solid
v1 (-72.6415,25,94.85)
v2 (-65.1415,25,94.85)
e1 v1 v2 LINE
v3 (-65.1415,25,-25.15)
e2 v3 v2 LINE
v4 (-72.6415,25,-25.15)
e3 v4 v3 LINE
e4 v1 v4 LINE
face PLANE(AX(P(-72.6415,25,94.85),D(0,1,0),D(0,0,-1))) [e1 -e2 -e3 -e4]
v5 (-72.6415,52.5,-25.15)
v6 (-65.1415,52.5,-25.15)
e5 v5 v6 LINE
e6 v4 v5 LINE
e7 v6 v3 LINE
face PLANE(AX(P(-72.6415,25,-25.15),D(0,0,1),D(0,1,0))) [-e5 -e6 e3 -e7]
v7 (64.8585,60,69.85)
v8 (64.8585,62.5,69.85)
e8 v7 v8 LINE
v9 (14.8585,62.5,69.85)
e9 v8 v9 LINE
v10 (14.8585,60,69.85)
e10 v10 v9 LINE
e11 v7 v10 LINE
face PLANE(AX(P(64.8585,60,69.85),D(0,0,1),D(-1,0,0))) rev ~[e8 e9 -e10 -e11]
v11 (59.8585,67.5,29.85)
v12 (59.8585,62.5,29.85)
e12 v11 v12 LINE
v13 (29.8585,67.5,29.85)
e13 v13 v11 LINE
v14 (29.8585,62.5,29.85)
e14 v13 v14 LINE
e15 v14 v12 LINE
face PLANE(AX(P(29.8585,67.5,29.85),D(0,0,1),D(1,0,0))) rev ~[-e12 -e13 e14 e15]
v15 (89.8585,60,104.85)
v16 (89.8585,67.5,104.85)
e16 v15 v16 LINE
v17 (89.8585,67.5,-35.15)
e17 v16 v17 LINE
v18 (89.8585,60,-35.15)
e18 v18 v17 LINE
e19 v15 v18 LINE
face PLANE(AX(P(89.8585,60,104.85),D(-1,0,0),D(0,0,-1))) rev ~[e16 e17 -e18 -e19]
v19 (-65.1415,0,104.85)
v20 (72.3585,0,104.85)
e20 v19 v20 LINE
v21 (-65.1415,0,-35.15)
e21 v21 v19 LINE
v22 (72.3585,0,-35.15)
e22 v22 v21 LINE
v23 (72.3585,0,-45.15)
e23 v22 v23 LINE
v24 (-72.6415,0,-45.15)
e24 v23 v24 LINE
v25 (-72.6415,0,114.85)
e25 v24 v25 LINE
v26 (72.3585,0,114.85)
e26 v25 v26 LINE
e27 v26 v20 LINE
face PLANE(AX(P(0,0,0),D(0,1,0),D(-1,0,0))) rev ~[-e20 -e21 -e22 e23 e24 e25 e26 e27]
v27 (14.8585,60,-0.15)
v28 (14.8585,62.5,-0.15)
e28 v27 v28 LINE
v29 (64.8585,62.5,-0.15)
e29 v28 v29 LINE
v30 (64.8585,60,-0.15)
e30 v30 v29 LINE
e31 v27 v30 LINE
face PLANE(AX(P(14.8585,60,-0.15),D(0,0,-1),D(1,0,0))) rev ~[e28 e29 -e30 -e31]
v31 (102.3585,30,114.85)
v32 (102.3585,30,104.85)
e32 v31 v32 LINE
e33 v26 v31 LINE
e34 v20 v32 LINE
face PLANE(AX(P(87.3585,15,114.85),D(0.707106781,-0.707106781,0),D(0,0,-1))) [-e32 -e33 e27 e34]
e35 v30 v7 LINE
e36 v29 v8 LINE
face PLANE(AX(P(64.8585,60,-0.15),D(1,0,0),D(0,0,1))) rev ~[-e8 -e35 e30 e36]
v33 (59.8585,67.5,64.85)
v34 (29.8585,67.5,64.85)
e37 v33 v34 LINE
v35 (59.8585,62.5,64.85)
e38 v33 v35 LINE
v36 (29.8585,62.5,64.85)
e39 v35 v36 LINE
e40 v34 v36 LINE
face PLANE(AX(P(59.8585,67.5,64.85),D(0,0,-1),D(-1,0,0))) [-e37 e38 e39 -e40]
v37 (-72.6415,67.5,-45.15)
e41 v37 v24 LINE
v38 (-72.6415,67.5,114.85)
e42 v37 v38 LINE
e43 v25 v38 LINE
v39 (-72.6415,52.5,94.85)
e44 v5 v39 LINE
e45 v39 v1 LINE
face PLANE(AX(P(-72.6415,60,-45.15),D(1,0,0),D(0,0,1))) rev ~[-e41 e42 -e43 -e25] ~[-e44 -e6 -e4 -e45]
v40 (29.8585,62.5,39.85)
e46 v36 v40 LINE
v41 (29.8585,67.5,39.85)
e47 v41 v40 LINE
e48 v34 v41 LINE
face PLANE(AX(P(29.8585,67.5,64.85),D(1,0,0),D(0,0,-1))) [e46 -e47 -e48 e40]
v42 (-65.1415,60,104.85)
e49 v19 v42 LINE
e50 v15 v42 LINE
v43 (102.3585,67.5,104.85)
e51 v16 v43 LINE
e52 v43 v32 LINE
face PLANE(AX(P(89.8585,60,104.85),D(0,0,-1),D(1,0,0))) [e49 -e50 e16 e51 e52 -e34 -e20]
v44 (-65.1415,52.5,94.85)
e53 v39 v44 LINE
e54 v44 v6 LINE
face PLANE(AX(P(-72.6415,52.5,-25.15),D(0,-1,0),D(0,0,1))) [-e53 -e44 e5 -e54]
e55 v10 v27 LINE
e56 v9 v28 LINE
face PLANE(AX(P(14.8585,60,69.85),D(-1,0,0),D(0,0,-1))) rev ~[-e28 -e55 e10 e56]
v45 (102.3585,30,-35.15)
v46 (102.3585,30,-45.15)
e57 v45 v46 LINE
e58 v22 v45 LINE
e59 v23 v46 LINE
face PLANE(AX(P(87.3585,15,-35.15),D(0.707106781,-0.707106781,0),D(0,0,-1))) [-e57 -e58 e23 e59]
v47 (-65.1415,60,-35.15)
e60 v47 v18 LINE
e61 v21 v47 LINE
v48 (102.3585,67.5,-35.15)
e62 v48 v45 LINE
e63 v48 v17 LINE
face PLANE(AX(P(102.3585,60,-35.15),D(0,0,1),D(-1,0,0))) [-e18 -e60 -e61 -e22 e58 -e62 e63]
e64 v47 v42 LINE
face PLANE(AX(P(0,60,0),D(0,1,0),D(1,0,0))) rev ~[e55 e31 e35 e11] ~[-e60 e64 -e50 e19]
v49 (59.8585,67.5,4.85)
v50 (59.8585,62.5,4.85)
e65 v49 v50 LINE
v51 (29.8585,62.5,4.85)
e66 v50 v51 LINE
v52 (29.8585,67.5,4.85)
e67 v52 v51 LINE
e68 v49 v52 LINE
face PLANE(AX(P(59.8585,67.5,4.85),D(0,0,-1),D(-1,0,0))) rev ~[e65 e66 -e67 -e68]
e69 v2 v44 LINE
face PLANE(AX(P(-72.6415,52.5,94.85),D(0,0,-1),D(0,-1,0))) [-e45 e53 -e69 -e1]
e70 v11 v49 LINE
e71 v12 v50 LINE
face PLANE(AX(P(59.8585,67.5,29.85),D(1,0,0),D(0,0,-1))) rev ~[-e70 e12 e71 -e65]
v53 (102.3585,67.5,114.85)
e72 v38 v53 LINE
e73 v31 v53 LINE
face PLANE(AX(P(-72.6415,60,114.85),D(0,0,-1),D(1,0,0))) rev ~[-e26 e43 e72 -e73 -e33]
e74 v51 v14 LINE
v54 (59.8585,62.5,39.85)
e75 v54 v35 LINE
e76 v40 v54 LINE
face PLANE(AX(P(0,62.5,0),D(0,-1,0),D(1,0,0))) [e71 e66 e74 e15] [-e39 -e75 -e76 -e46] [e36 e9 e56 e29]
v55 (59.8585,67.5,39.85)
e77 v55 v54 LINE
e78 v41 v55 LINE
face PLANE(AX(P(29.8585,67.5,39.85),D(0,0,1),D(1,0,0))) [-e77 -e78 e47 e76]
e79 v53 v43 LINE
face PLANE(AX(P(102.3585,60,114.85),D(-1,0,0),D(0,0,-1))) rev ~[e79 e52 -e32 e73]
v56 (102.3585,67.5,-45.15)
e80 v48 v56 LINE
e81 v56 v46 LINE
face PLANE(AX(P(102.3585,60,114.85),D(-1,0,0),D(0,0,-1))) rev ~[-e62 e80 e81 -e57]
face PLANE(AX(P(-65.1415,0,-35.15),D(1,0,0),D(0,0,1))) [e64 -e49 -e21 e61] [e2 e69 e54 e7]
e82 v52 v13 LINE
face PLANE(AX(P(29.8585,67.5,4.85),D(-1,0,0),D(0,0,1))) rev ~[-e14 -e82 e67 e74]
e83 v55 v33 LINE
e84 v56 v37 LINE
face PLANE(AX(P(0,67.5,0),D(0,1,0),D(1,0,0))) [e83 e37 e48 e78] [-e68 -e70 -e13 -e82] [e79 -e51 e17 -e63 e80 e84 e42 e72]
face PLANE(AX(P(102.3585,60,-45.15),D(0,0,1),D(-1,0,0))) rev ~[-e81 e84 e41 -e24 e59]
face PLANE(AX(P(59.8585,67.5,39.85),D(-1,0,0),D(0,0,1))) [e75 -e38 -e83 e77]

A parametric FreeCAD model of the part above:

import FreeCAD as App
import Part
import Sketcher
from FreeCAD import Vector
Q = App.Units.Quantity


def edges_at(feature, points):
    """Names of the edges that pass closest to the given points."""
    edges = feature.Shape.Edges
    near = lambda p: min(range(len(edges)), key=lambda i: edges[i].distToShape(Part.Vertex(*p))[0])
    return sorted({f"Edge{near(p) + 1}" for p in points})

doc = App.newDocument("Part")
body = doc.addObject("PartDesign::Body", "Body")

sketch1 = body.newObject("Sketcher::SketchObject", "Sketch")
sketch1.AttachmentSupport = (doc.getObject("XZ_Plane"), [""])
sketch1.MapMode = "FlatFace"
sketch1.addGeometry([
    Part.LineSegment(Vector(-73, -45, 0), Vector(-73, 115, 0)),
    Part.LineSegment(Vector(-73, 115, 0), Vector(102, 115, 0)),
    Part.LineSegment(Vector(102, 115, 0), Vector(102, 105, 0)),
    Part.LineSegment(Vector(102, 105, 0), Vector(-65, 105, 0)),
    Part.LineSegment(Vector(-65, 105, 0), Vector(-65, -35, 0)),
    Part.LineSegment(Vector(-65, -35, 0), Vector(102, -35, 0)),
    Part.LineSegment(Vector(102, -35, 0), Vector(102, -45, 0)),
    Part.LineSegment(Vector(102, -45, 0), Vector(-73, -45, 0)),
], False)
sketch1.addConstraint([
    Sketcher.Constraint("Coincident", 0, 2, 1, 1),
    Sketcher.Constraint("Coincident", 1, 2, 2, 1),
    Sketcher.Constraint("Coincident", 2, 2, 3, 1),
    Sketcher.Constraint("Coincident", 3, 2, 4, 1),
    Sketcher.Constraint("Coincident", 4, 2, 5, 1),
    Sketcher.Constraint("Coincident", 5, 2, 6, 1),
    Sketcher.Constraint("Coincident", 6, 2, 7, 1),
    Sketcher.Constraint("Coincident", 7, 2, 0, 1),
    Sketcher.Constraint("Vertical", 0),
    Sketcher.Constraint("Horizontal", 1),
    Sketcher.Constraint("Vertical", 2),
    Sketcher.Constraint("Horizontal", 3),
    Sketcher.Constraint("Vertical", 4),
    Sketcher.Constraint("Horizontal", 5),
    Sketcher.Constraint("Vertical", 6),
    Sketcher.Constraint("Horizontal", 7),
    Sketcher.Constraint("Vertical", 2, 2, 5, 2),
    Sketcher.Constraint("Equal", 2, 6),
    Sketcher.Constraint("DistanceX", 1, 1, 1, 2, Q("175 mm")),
    Sketcher.Constraint("DistanceY", 0, 1, 0, 2, Q("160 mm")),
    Sketcher.Constraint("DistanceY", 2, 2, 2, 1, Q("10 mm")),
    Sketcher.Constraint("DistanceX", 3, 2, 3, 1, Q("167.5 mm")),
    Sketcher.Constraint("DistanceY", -1, 1, 0, 2, Q("114.85 mm")),
    Sketcher.Constraint("DistanceX", 0, 2, -1, 1, Q("72.6415 mm")),
])
pad1 = body.newObject("PartDesign::Pad", "Pad")
pad1.Profile = sketch1
pad1.Length = 60
pad1.Reversed = True

sketch2 = body.newObject("Sketcher::SketchObject", "Sketch001")
sketch2.AttachmentSupport = (doc.getObject("YZ_Plane"), [""])
sketch2.MapMode = "FlatFace"
sketch2.AttachmentOffset = App.Placement(Vector(0, 0, -72.6415), App.Rotation())
sketch2.addGeometry([
    Part.LineSegment(Vector(52, 95, 0), Vector(52, -25, 0)),
    Part.LineSegment(Vector(52, -25, 0), Vector(25, -25, 0)),
    Part.LineSegment(Vector(25, -25, 0), Vector(25, 95, 0)),
    Part.LineSegment(Vector(25, 95, 0), Vector(52, 95, 0)),
], False)
sketch2.addConstraint([
    Sketcher.Constraint("Coincident", 0, 2, 1, 1),
    Sketcher.Constraint("Coincident", 1, 2, 2, 1),
    Sketcher.Constraint("Coincident", 2, 2, 3, 1),
    Sketcher.Constraint("Coincident", 3, 2, 0, 1),
    Sketcher.Constraint("Vertical", 0),
    Sketcher.Constraint("Horizontal", 1),
    Sketcher.Constraint("Vertical", 2),
    Sketcher.Constraint("Horizontal", 3),
    Sketcher.Constraint("DistanceY", 0, 2, 0, 1, Q("120 mm")),
    Sketcher.Constraint("DistanceX", 1, 2, 1, 1, Q("27.5 mm")),
    Sketcher.Constraint("DistanceX", -1, 1, 1, 2, Q("25 mm")),
    Sketcher.Constraint("DistanceY", 0, 2, -1, 1, Q("25.15 mm")),
])
pocket1 = body.newObject("PartDesign::Pocket", "Pocket")
pocket1.Profile = sketch2
pocket1.Length = 60
pocket1.Reversed = True

sketch3 = body.newObject("Sketcher::SketchObject", "Sketch002")
sketch3.AttachmentSupport = (doc.getObject("XZ_Plane"), [""])
sketch3.MapMode = "FlatFace"
sketch3.AttachmentOffset = App.Placement(Vector(0, 0, -60), App.Rotation())
sketch3.addGeometry([
    Part.LineSegment(Vector(-73, -45, 0), Vector(-73, 115, 0)),
    Part.LineSegment(Vector(-73, 115, 0), Vector(102, 115, 0)),
    Part.LineSegment(Vector(102, 115, 0), Vector(102, -45, 0)),
    Part.LineSegment(Vector(102, -45, 0), Vector(-73, -45, 0)),
], False)
sketch3.addConstraint([
    Sketcher.Constraint("Coincident", 0, 2, 1, 1),
    Sketcher.Constraint("Coincident", 1, 2, 2, 1),
    Sketcher.Constraint("Coincident", 2, 2, 3, 1),
    Sketcher.Constraint("Coincident", 3, 2, 0, 1),
    Sketcher.Constraint("Vertical", 0),
    Sketcher.Constraint("Horizontal", 1),
    Sketcher.Constraint("Vertical", 2),
    Sketcher.Constraint("Horizontal", 3),
    Sketcher.Constraint("DistanceX", 1, 1, 1, 2, Q("175 mm")),
    Sketcher.Constraint("DistanceY", 0, 1, 0, 2, Q("160 mm")),
    Sketcher.Constraint("DistanceY", -1, 1, 0, 2, Q("114.85 mm")),
    Sketcher.Constraint("DistanceX", 0, 2, -1, 1, Q("72.6415 mm")),
])
pad2 = body.newObject("PartDesign::Pad", "Pad001")
pad2.Profile = sketch3
pad2.Length = 7.5
pad2.Reversed = True

sketch4 = body.newObject("Sketcher::SketchObject", "Sketch003")
sketch4.AttachmentSupport = (doc.getObject("XZ_Plane"), [""])
sketch4.MapMode = "FlatFace"
sketch4.AttachmentOffset = App.Placement(Vector(0, 0, -60), App.Rotation())
sketch4.addGeometry([
    Part.LineSegment(Vector(102, 105, 0), Vector(90, 105, 0)),
    Part.LineSegment(Vector(90, 105, 0), Vector(90, -35, 0)),
    Part.LineSegment(Vector(90, -35, 0), Vector(102, -35, 0)),
    Part.LineSegment(Vector(102, -35, 0), Vector(102, 105, 0)),
], False)
sketch4.addConstraint([
    Sketcher.Constraint("Coincident", 0, 2, 1, 1),
    Sketcher.Constraint("Coincident", 1, 2, 2, 1),
    Sketcher.Constraint("Coincident", 2, 2, 3, 1),
    Sketcher.Constraint("Coincident", 3, 2, 0, 1),
    Sketcher.Constraint("Horizontal", 0),
    Sketcher.Constraint("Vertical", 1),
    Sketcher.Constraint("Horizontal", 2),
    Sketcher.Constraint("Vertical", 3),
    Sketcher.Constraint("DistanceX", 0, 2, 0, 1, Q("12.5 mm")),
    Sketcher.Constraint("DistanceY", 1, 2, 1, 1, Q("140 mm")),
    Sketcher.Constraint("DistanceY", -1, 1, 0, 2, Q("104.85 mm")),
    Sketcher.Constraint("DistanceX", -1, 1, 0, 2, Q("89.8585 mm")),
])
pocket2 = body.newObject("PartDesign::Pocket", "Pocket001")
pocket2.Profile = sketch4
pocket2.Length = 7.5
doc.recompute()

chamfer = body.newObject("PartDesign::Chamfer", "Chamfer")
chamfer.Base = (pocket2, edges_at(pocket2, [(102.359, 0, 109.85), (102.359, 0, -40.15)]))
chamfer.Size = 30

sketch5 = body.newObject("Sketcher::SketchObject", "Sketch004")
sketch5.AttachmentSupport = (doc.getObject("XZ_Plane"), [""])
sketch5.MapMode = "FlatFace"
sketch5.AttachmentOffset = App.Placement(Vector(0, 0, -67.5), App.Rotation())
sketch5.addGeometry([
    Part.LineSegment(Vector(60, 30, 0), Vector(60, 5, 0)),
    Part.LineSegment(Vector(60, 5, 0), Vector(30, 5, 0)),
    Part.LineSegment(Vector(30, 5, 0), Vector(30, 30, 0)),
    Part.LineSegment(Vector(30, 30, 0), Vector(60, 30, 0)),
    Part.LineSegment(Vector(30, 65, 0), Vector(60, 65, 0)),
    Part.LineSegment(Vector(60, 65, 0), Vector(60, 40, 0)),
    Part.LineSegment(Vector(60, 40, 0), Vector(30, 40, 0)),
    Part.LineSegment(Vector(30, 40, 0), Vector(30, 65, 0)),
], False)
sketch5.addConstraint([
    Sketcher.Constraint("Coincident", 0, 2, 1, 1),
    Sketcher.Constraint("Coincident", 1, 2, 2, 1),
    Sketcher.Constraint("Coincident", 2, 2, 3, 1),
    Sketcher.Constraint("Coincident", 3, 2, 0, 1),
    Sketcher.Constraint("Coincident", 4, 2, 5, 1),
    Sketcher.Constraint("Coincident", 5, 2, 6, 1),
    Sketcher.Constraint("Coincident", 6, 2, 7, 1),
    Sketcher.Constraint("Coincident", 7, 2, 4, 1),
    Sketcher.Constraint("Vertical", 0),
    Sketcher.Constraint("Horizontal", 1),
    Sketcher.Constraint("Vertical", 2),
    Sketcher.Constraint("Horizontal", 3),
    Sketcher.Constraint("Horizontal", 4),
    Sketcher.Constraint("Vertical", 5),
    Sketcher.Constraint("Horizontal", 6),
    Sketcher.Constraint("Vertical", 7),
    Sketcher.Constraint("Vertical", 3, 2, 4, 2),
    Sketcher.Constraint("Vertical", 2, 2, 6, 2),
    Sketcher.Constraint("Equal", 2, 5),
    Sketcher.Constraint("DistanceX", 1, 2, 1, 1, Q("30 mm")),
    Sketcher.Constraint("DistanceY", 0, 2, 0, 1, Q("25 mm")),
    Sketcher.Constraint("DistanceY", 3, 2, 5, 2, Q("10 mm")),
    Sketcher.Constraint("DistanceY", -1, 1, 0, 2, Q("4.85 mm")),
    Sketcher.Constraint("DistanceX", -1, 1, 0, 2, Q("59.8585 mm")),
])
pocket3 = body.newObject("PartDesign::Pocket", "Pocket002")
pocket3.Profile = sketch5
pocket3.Length = 7.5
pocket3.Reversed = True

sketch6 = body.newObject("Sketcher::SketchObject", "Sketch005")
sketch6.AttachmentSupport = (doc.getObject("XZ_Plane"), [""])
sketch6.MapMode = "FlatFace"
sketch6.AttachmentOffset = App.Placement(Vector(0, 0, -60), App.Rotation())
sketch6.addGeometry([
    Part.LineSegment(Vector(65, 0, 0), Vector(65, 70, 0)),
    Part.LineSegment(Vector(65, 70, 0), Vector(15, 70, 0)),
    Part.LineSegment(Vector(15, 70, 0), Vector(15, 0, 0)),
    Part.LineSegment(Vector(15, 0, 0), Vector(65, 0, 0)),
], False)
sketch6.addConstraint([
    Sketcher.Constraint("Coincident", 0, 2, 1, 1),
    Sketcher.Constraint("Coincident", 1, 2, 2, 1),
    Sketcher.Constraint("Coincident", 2, 2, 3, 1),
    Sketcher.Constraint("Coincident", 3, 2, 0, 1),
    Sketcher.Constraint("Vertical", 0),
    Sketcher.Constraint("Horizontal", 1),
    Sketcher.Constraint("Vertical", 2),
    Sketcher.Constraint("Horizontal", 3),
    Sketcher.Constraint("DistanceX", 1, 2, 1, 1, Q("50 mm")),
    Sketcher.Constraint("DistanceY", 0, 1, 0, 2, Q("70 mm")),
    Sketcher.Constraint("DistanceY", -1, 1, 0, 2, Q("69.85 mm")),
    Sketcher.Constraint("DistanceX", -1, 1, 0, 2, Q("64.8585 mm")),
])
pocket4 = body.newObject("PartDesign::Pocket", "Pocket003")
pocket4.Profile = sketch6
pocket4.Length = 2.5

doc.recompute()
